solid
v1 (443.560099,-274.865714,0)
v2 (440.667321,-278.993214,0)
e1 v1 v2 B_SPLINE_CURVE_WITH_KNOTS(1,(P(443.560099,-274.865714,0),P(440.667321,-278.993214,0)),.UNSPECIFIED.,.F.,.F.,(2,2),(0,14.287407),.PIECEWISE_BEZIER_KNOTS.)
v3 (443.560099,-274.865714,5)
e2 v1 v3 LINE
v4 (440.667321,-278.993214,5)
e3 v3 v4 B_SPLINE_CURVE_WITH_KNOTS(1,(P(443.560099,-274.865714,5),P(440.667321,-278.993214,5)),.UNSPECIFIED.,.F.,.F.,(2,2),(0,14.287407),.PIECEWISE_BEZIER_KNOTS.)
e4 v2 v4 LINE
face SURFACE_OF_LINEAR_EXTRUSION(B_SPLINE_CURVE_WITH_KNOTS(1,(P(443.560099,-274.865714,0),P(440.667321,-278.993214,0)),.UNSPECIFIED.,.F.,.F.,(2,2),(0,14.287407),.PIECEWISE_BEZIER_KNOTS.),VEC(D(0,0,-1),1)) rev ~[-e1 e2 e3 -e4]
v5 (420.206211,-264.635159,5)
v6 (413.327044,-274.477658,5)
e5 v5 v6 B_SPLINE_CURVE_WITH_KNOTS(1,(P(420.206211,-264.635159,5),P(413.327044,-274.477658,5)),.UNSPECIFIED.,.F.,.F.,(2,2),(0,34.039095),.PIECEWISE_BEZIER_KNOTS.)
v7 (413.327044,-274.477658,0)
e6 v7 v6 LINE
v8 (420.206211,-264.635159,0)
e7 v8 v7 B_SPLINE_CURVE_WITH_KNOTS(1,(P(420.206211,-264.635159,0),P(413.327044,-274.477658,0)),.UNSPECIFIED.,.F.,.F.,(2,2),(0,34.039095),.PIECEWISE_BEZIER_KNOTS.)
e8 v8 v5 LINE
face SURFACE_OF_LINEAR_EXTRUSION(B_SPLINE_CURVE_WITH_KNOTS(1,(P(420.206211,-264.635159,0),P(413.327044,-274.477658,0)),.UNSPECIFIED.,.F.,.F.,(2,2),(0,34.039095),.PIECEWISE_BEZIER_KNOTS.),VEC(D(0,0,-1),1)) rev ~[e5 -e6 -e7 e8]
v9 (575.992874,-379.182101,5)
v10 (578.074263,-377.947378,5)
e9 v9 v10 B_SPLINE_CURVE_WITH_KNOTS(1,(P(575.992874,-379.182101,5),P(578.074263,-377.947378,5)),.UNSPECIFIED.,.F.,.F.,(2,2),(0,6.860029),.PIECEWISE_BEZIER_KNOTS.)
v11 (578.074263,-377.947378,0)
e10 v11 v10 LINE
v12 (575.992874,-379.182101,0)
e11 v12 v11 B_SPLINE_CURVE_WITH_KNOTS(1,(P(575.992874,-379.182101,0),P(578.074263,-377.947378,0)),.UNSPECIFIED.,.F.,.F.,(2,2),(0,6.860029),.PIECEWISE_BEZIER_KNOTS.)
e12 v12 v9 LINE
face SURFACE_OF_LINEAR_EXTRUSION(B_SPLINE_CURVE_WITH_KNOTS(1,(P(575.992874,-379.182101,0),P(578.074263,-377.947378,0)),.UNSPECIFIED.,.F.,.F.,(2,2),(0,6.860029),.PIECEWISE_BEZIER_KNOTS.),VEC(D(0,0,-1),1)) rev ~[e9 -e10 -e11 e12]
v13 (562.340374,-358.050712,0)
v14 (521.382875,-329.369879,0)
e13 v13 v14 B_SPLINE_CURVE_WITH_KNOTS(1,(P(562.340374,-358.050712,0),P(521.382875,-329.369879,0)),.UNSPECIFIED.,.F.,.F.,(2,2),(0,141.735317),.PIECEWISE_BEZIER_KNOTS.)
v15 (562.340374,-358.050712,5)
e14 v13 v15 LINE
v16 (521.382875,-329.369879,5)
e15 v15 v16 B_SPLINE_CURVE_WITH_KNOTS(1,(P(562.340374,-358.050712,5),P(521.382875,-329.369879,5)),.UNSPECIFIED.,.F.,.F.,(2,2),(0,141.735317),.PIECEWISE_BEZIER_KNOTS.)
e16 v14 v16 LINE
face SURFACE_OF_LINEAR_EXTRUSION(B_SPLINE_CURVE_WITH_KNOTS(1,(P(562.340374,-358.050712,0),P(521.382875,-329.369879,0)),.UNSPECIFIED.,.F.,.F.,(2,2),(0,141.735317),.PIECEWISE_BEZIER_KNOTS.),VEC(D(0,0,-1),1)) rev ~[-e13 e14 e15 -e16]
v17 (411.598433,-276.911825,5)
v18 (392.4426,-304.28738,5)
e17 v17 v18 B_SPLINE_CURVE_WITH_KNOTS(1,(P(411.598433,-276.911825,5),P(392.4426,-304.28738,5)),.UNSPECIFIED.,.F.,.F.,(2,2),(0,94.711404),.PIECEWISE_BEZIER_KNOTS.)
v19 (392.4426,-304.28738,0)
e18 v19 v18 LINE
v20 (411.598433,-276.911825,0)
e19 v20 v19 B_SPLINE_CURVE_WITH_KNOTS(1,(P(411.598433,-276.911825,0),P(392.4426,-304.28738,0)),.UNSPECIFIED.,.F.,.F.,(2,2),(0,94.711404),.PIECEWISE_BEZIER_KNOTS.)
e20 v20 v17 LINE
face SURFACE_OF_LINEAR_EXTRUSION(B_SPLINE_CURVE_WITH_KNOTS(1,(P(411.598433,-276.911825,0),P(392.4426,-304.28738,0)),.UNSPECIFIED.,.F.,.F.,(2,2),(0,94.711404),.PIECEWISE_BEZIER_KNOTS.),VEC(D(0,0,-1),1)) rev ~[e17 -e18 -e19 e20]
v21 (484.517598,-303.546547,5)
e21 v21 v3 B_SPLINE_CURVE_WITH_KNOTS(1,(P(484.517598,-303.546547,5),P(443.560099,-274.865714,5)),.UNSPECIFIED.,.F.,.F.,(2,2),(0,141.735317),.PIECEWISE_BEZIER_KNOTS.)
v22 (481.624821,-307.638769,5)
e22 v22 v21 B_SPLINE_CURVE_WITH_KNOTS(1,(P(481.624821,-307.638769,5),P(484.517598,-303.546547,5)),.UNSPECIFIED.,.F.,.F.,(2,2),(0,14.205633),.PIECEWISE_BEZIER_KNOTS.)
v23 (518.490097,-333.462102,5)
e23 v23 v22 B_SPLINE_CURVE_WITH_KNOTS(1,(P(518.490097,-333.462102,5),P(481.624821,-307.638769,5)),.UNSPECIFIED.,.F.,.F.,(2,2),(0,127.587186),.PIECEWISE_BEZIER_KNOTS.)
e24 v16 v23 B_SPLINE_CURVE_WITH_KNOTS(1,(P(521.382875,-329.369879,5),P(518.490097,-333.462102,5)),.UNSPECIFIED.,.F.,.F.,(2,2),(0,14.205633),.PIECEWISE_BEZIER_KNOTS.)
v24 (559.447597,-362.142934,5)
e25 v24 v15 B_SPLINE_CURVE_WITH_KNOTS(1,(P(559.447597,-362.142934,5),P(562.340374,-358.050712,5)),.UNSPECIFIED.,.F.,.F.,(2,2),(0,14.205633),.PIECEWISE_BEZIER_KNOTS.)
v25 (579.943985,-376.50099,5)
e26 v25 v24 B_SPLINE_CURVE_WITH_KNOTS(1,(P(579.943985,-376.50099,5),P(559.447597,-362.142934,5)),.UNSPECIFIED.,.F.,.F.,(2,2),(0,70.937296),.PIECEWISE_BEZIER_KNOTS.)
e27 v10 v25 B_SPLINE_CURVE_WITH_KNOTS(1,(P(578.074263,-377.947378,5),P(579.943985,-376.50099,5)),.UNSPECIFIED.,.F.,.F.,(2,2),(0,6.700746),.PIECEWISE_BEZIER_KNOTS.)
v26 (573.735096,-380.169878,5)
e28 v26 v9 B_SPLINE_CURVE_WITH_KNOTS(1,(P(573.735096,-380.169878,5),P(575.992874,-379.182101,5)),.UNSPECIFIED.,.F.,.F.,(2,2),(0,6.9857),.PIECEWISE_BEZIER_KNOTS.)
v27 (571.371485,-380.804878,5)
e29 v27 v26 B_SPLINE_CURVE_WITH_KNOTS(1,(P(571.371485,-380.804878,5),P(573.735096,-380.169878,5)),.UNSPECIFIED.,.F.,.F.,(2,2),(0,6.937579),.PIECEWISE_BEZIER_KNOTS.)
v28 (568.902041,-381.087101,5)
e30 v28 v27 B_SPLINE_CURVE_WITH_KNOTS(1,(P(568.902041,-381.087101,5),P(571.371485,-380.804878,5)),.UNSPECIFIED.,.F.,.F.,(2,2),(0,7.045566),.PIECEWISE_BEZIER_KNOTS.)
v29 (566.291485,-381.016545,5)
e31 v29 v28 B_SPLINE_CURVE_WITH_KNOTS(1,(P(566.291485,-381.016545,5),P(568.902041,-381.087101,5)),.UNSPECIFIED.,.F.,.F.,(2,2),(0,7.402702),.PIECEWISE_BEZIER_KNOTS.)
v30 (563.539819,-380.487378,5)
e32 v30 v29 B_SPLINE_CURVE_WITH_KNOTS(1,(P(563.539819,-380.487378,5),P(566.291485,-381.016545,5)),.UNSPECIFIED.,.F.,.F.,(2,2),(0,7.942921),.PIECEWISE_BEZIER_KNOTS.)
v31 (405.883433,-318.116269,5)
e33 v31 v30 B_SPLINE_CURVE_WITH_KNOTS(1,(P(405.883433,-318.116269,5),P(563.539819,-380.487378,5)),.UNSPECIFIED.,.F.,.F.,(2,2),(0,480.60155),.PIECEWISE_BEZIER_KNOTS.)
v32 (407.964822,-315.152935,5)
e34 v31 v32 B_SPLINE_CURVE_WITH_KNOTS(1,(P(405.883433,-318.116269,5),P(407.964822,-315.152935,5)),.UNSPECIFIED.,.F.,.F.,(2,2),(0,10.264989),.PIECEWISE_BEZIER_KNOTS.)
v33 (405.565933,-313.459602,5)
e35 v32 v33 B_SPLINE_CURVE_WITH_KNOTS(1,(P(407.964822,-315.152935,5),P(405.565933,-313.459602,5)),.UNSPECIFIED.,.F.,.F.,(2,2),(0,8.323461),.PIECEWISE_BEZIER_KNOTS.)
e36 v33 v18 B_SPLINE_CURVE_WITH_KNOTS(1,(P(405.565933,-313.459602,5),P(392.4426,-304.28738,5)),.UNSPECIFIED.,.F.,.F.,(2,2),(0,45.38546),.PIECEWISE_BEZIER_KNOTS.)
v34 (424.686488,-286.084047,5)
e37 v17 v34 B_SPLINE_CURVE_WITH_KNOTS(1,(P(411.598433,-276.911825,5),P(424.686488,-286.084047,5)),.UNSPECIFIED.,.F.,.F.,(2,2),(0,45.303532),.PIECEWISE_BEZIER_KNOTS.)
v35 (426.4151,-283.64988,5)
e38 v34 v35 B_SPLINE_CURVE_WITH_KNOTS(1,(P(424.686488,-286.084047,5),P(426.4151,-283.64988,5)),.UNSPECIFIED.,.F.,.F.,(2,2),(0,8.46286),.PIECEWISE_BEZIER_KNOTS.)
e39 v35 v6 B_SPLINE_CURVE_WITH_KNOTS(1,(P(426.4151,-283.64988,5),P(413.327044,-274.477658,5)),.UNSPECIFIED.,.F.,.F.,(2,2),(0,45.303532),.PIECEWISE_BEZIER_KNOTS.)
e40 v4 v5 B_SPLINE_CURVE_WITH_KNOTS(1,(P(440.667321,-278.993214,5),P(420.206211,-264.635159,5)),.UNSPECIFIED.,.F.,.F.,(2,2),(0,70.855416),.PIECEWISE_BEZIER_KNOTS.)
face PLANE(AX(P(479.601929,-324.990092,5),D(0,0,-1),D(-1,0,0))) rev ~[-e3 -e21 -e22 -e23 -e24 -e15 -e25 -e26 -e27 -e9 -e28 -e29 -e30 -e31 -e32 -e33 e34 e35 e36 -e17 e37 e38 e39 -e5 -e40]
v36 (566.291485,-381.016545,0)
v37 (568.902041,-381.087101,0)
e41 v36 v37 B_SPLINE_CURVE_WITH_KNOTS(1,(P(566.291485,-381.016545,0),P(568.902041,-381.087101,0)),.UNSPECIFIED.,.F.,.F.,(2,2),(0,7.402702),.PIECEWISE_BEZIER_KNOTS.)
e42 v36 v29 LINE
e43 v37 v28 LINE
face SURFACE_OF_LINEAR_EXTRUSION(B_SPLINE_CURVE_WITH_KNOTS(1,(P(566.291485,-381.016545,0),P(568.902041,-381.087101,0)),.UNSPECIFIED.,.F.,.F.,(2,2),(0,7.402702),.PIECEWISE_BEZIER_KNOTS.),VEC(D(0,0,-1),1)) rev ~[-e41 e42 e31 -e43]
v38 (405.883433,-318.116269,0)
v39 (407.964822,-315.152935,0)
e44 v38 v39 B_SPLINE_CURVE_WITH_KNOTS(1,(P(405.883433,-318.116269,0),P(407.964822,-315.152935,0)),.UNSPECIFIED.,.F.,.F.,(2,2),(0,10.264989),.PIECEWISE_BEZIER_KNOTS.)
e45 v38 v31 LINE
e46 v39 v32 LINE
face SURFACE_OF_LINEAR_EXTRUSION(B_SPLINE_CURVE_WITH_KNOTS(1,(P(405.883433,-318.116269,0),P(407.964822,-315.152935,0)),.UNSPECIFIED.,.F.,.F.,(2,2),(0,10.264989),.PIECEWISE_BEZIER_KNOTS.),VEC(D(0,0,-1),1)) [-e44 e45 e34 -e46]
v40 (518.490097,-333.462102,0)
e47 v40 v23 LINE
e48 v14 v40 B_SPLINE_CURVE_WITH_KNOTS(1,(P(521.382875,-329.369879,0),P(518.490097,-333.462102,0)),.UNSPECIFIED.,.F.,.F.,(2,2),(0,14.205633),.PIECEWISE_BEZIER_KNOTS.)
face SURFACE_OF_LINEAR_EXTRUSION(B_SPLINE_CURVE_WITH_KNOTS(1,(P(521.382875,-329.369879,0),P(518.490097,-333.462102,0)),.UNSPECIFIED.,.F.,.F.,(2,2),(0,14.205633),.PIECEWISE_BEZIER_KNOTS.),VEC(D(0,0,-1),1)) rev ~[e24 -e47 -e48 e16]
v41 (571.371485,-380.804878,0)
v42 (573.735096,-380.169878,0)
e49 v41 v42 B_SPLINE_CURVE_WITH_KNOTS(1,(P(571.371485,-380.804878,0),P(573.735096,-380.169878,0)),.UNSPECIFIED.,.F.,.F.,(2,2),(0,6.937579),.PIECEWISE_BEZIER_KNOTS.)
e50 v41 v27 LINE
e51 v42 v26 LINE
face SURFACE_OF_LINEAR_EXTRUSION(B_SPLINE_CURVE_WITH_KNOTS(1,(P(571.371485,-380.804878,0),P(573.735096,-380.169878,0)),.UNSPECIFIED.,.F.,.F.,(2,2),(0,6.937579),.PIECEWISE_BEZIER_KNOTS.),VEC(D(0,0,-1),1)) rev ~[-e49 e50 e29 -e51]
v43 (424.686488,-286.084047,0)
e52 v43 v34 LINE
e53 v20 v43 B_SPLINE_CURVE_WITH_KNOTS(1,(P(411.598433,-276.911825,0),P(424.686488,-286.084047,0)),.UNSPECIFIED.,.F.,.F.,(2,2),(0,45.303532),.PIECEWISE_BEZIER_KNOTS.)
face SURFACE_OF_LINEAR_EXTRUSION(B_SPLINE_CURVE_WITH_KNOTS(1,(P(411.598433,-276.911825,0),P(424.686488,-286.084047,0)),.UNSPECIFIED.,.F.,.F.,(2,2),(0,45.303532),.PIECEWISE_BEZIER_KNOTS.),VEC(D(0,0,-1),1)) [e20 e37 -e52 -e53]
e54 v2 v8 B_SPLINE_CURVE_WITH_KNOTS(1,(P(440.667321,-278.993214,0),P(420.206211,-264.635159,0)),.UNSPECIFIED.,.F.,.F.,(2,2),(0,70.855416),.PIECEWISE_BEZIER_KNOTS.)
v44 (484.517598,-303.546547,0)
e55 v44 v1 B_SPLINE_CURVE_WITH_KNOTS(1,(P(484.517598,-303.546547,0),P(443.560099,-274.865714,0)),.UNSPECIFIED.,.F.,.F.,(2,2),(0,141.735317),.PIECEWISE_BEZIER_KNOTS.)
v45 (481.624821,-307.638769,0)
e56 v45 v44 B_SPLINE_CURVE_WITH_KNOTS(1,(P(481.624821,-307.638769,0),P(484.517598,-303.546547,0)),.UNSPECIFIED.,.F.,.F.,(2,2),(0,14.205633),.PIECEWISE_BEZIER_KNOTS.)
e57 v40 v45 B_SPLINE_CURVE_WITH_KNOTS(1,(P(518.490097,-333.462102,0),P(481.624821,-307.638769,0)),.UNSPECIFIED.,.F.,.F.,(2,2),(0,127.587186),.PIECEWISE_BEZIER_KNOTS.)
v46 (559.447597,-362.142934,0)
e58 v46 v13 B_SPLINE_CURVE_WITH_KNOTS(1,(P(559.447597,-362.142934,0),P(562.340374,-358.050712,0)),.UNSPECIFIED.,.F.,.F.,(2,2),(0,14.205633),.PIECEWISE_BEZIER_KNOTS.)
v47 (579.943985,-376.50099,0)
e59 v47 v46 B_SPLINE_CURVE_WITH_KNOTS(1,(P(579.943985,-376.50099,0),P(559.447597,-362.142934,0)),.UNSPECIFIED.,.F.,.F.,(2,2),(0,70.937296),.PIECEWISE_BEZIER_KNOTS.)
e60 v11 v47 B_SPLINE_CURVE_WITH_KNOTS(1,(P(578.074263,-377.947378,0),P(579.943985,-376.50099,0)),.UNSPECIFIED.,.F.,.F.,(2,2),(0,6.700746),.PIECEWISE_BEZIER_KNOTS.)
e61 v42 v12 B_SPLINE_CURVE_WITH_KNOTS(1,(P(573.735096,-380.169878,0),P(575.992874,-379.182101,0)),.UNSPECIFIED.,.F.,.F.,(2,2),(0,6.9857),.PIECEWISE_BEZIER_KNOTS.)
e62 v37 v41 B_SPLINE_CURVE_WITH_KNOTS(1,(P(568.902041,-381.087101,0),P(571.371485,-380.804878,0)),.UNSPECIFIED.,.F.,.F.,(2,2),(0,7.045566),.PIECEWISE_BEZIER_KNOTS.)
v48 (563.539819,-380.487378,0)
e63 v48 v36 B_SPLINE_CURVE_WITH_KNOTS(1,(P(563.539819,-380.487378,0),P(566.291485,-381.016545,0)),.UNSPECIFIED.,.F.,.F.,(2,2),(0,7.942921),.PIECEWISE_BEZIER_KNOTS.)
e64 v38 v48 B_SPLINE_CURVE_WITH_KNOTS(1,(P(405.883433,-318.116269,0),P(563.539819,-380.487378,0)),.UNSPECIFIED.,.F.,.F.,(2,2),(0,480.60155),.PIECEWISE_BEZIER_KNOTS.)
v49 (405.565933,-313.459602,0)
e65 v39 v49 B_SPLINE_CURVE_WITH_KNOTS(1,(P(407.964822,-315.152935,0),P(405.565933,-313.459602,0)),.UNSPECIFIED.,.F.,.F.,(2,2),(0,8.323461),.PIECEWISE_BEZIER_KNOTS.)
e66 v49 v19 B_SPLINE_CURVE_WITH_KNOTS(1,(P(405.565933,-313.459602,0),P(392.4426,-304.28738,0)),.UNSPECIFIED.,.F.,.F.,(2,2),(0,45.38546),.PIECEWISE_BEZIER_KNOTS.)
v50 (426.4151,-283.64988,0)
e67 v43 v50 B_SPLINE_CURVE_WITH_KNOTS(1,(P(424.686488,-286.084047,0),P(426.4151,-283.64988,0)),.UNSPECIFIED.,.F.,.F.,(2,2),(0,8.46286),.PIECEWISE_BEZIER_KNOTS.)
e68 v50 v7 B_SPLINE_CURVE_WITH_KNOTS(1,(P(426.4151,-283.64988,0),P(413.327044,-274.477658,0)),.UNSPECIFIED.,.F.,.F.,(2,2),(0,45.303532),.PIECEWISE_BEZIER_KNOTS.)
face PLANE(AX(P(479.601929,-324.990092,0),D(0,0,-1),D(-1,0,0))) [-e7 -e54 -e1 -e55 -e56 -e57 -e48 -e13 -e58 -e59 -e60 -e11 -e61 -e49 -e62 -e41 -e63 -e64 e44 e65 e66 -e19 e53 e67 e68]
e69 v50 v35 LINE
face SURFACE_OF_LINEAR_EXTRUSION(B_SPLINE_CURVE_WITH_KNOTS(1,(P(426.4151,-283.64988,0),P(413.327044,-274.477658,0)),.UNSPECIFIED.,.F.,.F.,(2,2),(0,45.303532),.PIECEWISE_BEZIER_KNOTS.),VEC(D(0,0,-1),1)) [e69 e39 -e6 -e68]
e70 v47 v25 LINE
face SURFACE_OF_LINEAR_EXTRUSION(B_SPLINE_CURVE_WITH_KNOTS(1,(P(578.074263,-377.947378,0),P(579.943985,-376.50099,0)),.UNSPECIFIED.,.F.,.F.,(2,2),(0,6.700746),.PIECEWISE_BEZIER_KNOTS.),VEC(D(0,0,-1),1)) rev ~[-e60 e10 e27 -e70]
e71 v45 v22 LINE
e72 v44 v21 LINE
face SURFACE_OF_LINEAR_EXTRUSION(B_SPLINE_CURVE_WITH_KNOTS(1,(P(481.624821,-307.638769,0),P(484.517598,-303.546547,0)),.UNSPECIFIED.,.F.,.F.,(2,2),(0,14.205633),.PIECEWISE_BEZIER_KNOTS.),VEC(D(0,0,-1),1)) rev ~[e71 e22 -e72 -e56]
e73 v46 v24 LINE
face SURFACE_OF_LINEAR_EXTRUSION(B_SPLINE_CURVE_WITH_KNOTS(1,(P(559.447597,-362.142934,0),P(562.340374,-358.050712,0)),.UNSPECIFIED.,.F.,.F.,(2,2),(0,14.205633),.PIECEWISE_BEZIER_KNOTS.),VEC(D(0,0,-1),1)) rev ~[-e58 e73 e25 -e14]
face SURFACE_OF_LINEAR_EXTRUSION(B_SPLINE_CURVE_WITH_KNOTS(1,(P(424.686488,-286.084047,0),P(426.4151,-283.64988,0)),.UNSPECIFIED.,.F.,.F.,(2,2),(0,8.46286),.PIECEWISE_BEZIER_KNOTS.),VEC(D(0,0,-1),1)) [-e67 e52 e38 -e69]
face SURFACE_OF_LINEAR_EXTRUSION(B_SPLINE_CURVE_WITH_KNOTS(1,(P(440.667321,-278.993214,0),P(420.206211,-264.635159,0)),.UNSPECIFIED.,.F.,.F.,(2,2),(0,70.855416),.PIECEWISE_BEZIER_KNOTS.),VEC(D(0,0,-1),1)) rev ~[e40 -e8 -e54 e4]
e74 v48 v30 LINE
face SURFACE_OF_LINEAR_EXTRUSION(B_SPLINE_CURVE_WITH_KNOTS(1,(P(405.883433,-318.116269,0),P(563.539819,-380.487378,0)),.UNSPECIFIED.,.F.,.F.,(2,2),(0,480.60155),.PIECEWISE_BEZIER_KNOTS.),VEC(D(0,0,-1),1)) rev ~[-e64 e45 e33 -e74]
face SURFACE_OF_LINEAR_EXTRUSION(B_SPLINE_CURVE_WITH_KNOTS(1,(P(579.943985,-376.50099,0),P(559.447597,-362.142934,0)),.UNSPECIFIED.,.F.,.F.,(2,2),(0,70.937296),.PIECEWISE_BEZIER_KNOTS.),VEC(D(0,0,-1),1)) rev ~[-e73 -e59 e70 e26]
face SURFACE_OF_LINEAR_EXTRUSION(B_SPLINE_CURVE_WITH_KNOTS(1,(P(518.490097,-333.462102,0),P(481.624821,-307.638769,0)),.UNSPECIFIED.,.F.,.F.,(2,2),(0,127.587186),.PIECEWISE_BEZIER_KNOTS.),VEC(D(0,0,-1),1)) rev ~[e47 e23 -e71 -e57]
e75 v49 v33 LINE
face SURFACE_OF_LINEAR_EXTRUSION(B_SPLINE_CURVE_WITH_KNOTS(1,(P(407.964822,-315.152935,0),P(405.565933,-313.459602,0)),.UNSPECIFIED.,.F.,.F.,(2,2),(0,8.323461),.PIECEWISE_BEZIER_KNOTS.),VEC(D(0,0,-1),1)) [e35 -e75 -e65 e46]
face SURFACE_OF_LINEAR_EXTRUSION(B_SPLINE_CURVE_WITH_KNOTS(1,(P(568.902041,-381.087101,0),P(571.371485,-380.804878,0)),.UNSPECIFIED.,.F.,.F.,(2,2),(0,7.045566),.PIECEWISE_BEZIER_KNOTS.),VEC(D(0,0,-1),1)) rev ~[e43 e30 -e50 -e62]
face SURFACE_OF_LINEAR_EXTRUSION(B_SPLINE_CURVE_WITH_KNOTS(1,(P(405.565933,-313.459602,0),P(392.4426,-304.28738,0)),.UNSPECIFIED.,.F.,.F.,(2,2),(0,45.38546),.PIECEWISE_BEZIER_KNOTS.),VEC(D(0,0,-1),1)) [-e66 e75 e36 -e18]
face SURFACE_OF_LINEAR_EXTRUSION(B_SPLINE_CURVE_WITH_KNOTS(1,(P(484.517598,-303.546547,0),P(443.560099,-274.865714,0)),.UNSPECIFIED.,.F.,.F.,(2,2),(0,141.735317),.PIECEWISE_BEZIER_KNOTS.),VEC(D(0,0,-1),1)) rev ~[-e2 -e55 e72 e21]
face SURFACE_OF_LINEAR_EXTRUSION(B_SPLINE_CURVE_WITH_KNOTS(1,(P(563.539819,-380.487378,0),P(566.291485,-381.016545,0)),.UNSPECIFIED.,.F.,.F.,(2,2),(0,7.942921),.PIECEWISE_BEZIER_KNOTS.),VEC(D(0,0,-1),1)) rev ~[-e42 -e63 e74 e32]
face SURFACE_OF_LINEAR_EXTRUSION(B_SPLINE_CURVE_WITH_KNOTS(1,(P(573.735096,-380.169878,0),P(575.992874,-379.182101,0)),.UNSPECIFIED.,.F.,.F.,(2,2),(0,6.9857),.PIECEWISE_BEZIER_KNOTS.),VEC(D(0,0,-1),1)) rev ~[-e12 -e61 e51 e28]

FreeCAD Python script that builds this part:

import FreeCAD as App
import Part
import Sketcher

V = App.Vector

doc = App.newDocument("Part")
body = doc.addObject("PartDesign::Body", "Body")

# Sketch on XY plane
sketch1 = body.newObject("Sketcher::SketchObject", "Sketch")
sketch1.AttachmentSupport = (doc.getObject("XY_Plane"), [""])
sketch1.MapMode = "FlatFace"
sketch1.addGeometry([
    Part.BSplineCurve([V(411.598433, -276.911825, 0), V(424.686488, -286.084047, 0)], [2, 2], [0, 45.303532], False, 1, [1, 1], False),  # 0
    Part.BSplineCurve([V(411.598433, -276.911825, 0), V(392.4426, -304.28738, 0)], [2, 2], [0, 94.711404], False, 1, [1, 1], False),  # 1
    Part.BSplineCurve([V(405.565933, -313.459602, 0), V(392.4426, -304.28738, 0)], [2, 2], [0, 45.38546], False, 1, [1, 1], False),  # 2
    Part.BSplineCurve([V(407.964822, -315.152935, 0), V(405.565933, -313.459602, 0)], [2, 2], [0, 8.323461], False, 1, [1, 1], False),  # 3
    Part.BSplineCurve([V(405.883433, -318.116269, 0), V(407.964822, -315.152935, 0)], [2, 2], [0, 10.264989], False, 1, [1, 1], False),  # 4
    Part.BSplineCurve([V(405.883433, -318.116269, 0), V(563.539819, -380.487378, 0)], [2, 2], [0, 480.60155], False, 1, [1, 1], False),  # 5
    Part.BSplineCurve([V(563.539819, -380.487378, 0), V(566.291485, -381.016545, 0)], [2, 2], [0, 7.942921], False, 1, [1, 1], False),  # 6
    Part.BSplineCurve([V(566.291485, -381.016545, 0), V(568.902041, -381.087101, 0)], [2, 2], [0, 7.402702], False, 1, [1, 1], False),  # 7
    Part.BSplineCurve([V(568.902041, -381.087101, 0), V(571.371485, -380.804878, 0)], [2, 2], [0, 7.045566], False, 1, [1, 1], False),  # 8
    Part.BSplineCurve([V(571.371485, -380.804878, 0), V(573.735096, -380.169878, 0)], [2, 2], [0, 6.937579], False, 1, [1, 1], False),  # 9
    Part.BSplineCurve([V(573.735096, -380.169878, 0), V(575.992874, -379.182101, 0)], [2, 2], [0, 6.9857], False, 1, [1, 1], False),  # 10
    Part.BSplineCurve([V(575.992874, -379.182101, 0), V(578.074263, -377.947378, 0)], [2, 2], [0, 6.860029], False, 1, [1, 1], False),  # 11
    Part.BSplineCurve([V(578.074263, -377.947378, 0), V(579.943985, -376.50099, 0)], [2, 2], [0, 6.700746], False, 1, [1, 1], False),  # 12
    Part.BSplineCurve([V(579.943985, -376.50099, 0), V(559.447597, -362.142934, 0)], [2, 2], [0, 70.937296], False, 1, [1, 1], False),  # 13
    Part.BSplineCurve([V(559.447597, -362.142934, 0), V(562.340374, -358.050712, 0)], [2, 2], [0, 14.205633], False, 1, [1, 1], False),  # 14
    Part.BSplineCurve([V(562.340374, -358.050712, 0), V(521.382875, -329.369879, 0)], [2, 2], [0, 141.735317], False, 1, [1, 1], False),  # 15
    Part.BSplineCurve([V(521.382875, -329.369879, 0), V(518.490097, -333.462102, 0)], [2, 2], [0, 14.205633], False, 1, [1, 1], False),  # 16
    Part.BSplineCurve([V(518.490097, -333.462102, 0), V(481.624821, -307.638769, 0)], [2, 2], [0, 127.587186], False, 1, [1, 1], False),  # 17
    Part.BSplineCurve([V(481.624821, -307.638769, 0), V(484.517598, -303.546547, 0)], [2, 2], [0, 14.205633], False, 1, [1, 1], False),  # 18
    Part.BSplineCurve([V(484.517598, -303.546547, 0), V(443.560099, -274.865714, 0)], [2, 2], [0, 141.735317], False, 1, [1, 1], False),  # 19
    Part.BSplineCurve([V(443.560099, -274.865714, 0), V(440.667321, -278.993214, 0)], [2, 2], [0, 14.287407], False, 1, [1, 1], False),  # 20
    Part.BSplineCurve([V(440.667321, -278.993214, 0), V(420.206211, -264.635159, 0)], [2, 2], [0, 70.855416], False, 1, [1, 1], False),  # 21
    Part.BSplineCurve([V(420.206211, -264.635159, 0), V(413.327044, -274.477658, 0)], [2, 2], [0, 34.039095], False, 1, [1, 1], False),  # 22
    Part.BSplineCurve([V(426.4151, -283.64988, 0), V(413.327044, -274.477658, 0)], [2, 2], [0, 45.303532], False, 1, [1, 1], False),  # 23
    Part.BSplineCurve([V(424.686488, -286.084047, 0), V(426.4151, -283.64988, 0)], [2, 2], [0, 8.46286], False, 1, [1, 1], False),  # 24
], False)
sketch1.addConstraint([
    Sketcher.Constraint("Block", 0),
    Sketcher.Constraint("Block", 1),
    Sketcher.Constraint("Block", 2),
    Sketcher.Constraint("Block", 3),
    Sketcher.Constraint("Block", 4),
    Sketcher.Constraint("Block", 5),
    Sketcher.Constraint("Block", 6),
    Sketcher.Constraint("Block", 7),
    Sketcher.Constraint("Block", 8),
    Sketcher.Constraint("Block", 9),
    Sketcher.Constraint("Block", 10),
    Sketcher.Constraint("Block", 11),
    Sketcher.Constraint("Block", 12),
    Sketcher.Constraint("Block", 13),
    Sketcher.Constraint("Block", 14),
    Sketcher.Constraint("Block", 15),
    Sketcher.Constraint("Block", 16),
    Sketcher.Constraint("Block", 17),
    Sketcher.Constraint("Block", 18),
    Sketcher.Constraint("Block", 19),
    Sketcher.Constraint("Block", 20),
    Sketcher.Constraint("Block", 21),
    Sketcher.Constraint("Block", 22),
    Sketcher.Constraint("Block", 23),
    Sketcher.Constraint("Block", 24),
])
pad1 = body.newObject("PartDesign::Pad", "Pad")
pad1.Profile = sketch1
pad1.Length = 5

doc.recompute()
